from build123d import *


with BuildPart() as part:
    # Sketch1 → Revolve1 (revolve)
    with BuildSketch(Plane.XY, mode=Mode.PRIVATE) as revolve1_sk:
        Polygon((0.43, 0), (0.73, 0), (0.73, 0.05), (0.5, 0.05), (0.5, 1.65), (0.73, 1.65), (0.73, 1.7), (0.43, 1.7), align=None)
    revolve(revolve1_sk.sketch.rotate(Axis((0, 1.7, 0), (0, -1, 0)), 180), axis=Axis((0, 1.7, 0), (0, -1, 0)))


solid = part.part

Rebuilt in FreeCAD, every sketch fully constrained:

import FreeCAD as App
import Part
import Sketcher

doc = App.newDocument("Part")
body = doc.addObject("PartDesign::Body", "Body")

# Sketch on XY plane
sketch1 = body.newObject("Sketcher::SketchObject", "Sketch")
sketch1.AttachmentSupport = (doc.getObject("XY_Plane"), [""])
sketch1.MapMode = "FlatFace"
sketch1.addGeometry([
    Part.LineSegment(App.Vector(0.43, 0, 0), App.Vector(0.73, 0, 0)),  # 0
    Part.LineSegment(App.Vector(0.73, 0, 0), App.Vector(0.73, 0.05, 0)),  # 1
    Part.LineSegment(App.Vector(0.73, 0.05, 0), App.Vector(0.5, 0.05, 0)),  # 2
    Part.LineSegment(App.Vector(0.5, 0.05, 0), App.Vector(0.5, 1.65, 0)),  # 3
    Part.LineSegment(App.Vector(0.5, 1.65, 0), App.Vector(0.73, 1.65, 0)),  # 4
    Part.LineSegment(App.Vector(0.73, 1.65, 0), App.Vector(0.73, 1.7, 0)),  # 5
    Part.LineSegment(App.Vector(0.73, 1.7, 0), App.Vector(0.43, 1.7, 0)),  # 6
    Part.LineSegment(App.Vector(0.43, 1.7, 0), App.Vector(0.43, 0, 0)),  # 7
], False)
sketch1.addConstraint([
    Sketcher.Constraint("Coincident", 0, 2, 1, 1),
    Sketcher.Constraint("Coincident", 1, 2, 2, 1),
    Sketcher.Constraint("Coincident", 2, 2, 3, 1),
    Sketcher.Constraint("Coincident", 3, 2, 4, 1),
    Sketcher.Constraint("Coincident", 4, 2, 5, 1),
    Sketcher.Constraint("Coincident", 5, 2, 6, 1),
    Sketcher.Constraint("Coincident", 6, 2, 7, 1),
    Sketcher.Constraint("Coincident", 7, 2, 0, 1),
    Sketcher.Constraint("Horizontal", 0),
    Sketcher.Constraint("Vertical", 1),
    Sketcher.Constraint("Horizontal", 2),
    Sketcher.Constraint("Vertical", 3),
    Sketcher.Constraint("Horizontal", 4),
    Sketcher.Constraint("Vertical", 5),
    Sketcher.Constraint("Horizontal", 6),
    Sketcher.Constraint("Vertical", 7),
    Sketcher.Constraint("PointOnObject", 0, 2, -1),
    Sketcher.Constraint("Vertical", 1, 2, 4, 2),
    Sketcher.Constraint("Equal", 1, 5),
    Sketcher.Constraint("DistanceX", 0, 1, 0, 2, 0.3),
    Sketcher.Constraint("DistanceY", 3, 1, 3, 2, 1.6),
    Sketcher.Constraint("DistanceY", 7, 2, 7, 1, 1.7),
    Sketcher.Constraint("DistanceX", 2, 2, 2, 1, 0.23),
    Sketcher.Constraint("DistanceX", -1, 1, 2, 2, 0.5),
])
revolution = body.newObject("PartDesign::Revolution", "Revolution")
revolution.Profile = sketch1
revolution.ReferenceAxis = (sketch1, ["V_Axis"])
revolution.Angle = 360

doc.recompute()
